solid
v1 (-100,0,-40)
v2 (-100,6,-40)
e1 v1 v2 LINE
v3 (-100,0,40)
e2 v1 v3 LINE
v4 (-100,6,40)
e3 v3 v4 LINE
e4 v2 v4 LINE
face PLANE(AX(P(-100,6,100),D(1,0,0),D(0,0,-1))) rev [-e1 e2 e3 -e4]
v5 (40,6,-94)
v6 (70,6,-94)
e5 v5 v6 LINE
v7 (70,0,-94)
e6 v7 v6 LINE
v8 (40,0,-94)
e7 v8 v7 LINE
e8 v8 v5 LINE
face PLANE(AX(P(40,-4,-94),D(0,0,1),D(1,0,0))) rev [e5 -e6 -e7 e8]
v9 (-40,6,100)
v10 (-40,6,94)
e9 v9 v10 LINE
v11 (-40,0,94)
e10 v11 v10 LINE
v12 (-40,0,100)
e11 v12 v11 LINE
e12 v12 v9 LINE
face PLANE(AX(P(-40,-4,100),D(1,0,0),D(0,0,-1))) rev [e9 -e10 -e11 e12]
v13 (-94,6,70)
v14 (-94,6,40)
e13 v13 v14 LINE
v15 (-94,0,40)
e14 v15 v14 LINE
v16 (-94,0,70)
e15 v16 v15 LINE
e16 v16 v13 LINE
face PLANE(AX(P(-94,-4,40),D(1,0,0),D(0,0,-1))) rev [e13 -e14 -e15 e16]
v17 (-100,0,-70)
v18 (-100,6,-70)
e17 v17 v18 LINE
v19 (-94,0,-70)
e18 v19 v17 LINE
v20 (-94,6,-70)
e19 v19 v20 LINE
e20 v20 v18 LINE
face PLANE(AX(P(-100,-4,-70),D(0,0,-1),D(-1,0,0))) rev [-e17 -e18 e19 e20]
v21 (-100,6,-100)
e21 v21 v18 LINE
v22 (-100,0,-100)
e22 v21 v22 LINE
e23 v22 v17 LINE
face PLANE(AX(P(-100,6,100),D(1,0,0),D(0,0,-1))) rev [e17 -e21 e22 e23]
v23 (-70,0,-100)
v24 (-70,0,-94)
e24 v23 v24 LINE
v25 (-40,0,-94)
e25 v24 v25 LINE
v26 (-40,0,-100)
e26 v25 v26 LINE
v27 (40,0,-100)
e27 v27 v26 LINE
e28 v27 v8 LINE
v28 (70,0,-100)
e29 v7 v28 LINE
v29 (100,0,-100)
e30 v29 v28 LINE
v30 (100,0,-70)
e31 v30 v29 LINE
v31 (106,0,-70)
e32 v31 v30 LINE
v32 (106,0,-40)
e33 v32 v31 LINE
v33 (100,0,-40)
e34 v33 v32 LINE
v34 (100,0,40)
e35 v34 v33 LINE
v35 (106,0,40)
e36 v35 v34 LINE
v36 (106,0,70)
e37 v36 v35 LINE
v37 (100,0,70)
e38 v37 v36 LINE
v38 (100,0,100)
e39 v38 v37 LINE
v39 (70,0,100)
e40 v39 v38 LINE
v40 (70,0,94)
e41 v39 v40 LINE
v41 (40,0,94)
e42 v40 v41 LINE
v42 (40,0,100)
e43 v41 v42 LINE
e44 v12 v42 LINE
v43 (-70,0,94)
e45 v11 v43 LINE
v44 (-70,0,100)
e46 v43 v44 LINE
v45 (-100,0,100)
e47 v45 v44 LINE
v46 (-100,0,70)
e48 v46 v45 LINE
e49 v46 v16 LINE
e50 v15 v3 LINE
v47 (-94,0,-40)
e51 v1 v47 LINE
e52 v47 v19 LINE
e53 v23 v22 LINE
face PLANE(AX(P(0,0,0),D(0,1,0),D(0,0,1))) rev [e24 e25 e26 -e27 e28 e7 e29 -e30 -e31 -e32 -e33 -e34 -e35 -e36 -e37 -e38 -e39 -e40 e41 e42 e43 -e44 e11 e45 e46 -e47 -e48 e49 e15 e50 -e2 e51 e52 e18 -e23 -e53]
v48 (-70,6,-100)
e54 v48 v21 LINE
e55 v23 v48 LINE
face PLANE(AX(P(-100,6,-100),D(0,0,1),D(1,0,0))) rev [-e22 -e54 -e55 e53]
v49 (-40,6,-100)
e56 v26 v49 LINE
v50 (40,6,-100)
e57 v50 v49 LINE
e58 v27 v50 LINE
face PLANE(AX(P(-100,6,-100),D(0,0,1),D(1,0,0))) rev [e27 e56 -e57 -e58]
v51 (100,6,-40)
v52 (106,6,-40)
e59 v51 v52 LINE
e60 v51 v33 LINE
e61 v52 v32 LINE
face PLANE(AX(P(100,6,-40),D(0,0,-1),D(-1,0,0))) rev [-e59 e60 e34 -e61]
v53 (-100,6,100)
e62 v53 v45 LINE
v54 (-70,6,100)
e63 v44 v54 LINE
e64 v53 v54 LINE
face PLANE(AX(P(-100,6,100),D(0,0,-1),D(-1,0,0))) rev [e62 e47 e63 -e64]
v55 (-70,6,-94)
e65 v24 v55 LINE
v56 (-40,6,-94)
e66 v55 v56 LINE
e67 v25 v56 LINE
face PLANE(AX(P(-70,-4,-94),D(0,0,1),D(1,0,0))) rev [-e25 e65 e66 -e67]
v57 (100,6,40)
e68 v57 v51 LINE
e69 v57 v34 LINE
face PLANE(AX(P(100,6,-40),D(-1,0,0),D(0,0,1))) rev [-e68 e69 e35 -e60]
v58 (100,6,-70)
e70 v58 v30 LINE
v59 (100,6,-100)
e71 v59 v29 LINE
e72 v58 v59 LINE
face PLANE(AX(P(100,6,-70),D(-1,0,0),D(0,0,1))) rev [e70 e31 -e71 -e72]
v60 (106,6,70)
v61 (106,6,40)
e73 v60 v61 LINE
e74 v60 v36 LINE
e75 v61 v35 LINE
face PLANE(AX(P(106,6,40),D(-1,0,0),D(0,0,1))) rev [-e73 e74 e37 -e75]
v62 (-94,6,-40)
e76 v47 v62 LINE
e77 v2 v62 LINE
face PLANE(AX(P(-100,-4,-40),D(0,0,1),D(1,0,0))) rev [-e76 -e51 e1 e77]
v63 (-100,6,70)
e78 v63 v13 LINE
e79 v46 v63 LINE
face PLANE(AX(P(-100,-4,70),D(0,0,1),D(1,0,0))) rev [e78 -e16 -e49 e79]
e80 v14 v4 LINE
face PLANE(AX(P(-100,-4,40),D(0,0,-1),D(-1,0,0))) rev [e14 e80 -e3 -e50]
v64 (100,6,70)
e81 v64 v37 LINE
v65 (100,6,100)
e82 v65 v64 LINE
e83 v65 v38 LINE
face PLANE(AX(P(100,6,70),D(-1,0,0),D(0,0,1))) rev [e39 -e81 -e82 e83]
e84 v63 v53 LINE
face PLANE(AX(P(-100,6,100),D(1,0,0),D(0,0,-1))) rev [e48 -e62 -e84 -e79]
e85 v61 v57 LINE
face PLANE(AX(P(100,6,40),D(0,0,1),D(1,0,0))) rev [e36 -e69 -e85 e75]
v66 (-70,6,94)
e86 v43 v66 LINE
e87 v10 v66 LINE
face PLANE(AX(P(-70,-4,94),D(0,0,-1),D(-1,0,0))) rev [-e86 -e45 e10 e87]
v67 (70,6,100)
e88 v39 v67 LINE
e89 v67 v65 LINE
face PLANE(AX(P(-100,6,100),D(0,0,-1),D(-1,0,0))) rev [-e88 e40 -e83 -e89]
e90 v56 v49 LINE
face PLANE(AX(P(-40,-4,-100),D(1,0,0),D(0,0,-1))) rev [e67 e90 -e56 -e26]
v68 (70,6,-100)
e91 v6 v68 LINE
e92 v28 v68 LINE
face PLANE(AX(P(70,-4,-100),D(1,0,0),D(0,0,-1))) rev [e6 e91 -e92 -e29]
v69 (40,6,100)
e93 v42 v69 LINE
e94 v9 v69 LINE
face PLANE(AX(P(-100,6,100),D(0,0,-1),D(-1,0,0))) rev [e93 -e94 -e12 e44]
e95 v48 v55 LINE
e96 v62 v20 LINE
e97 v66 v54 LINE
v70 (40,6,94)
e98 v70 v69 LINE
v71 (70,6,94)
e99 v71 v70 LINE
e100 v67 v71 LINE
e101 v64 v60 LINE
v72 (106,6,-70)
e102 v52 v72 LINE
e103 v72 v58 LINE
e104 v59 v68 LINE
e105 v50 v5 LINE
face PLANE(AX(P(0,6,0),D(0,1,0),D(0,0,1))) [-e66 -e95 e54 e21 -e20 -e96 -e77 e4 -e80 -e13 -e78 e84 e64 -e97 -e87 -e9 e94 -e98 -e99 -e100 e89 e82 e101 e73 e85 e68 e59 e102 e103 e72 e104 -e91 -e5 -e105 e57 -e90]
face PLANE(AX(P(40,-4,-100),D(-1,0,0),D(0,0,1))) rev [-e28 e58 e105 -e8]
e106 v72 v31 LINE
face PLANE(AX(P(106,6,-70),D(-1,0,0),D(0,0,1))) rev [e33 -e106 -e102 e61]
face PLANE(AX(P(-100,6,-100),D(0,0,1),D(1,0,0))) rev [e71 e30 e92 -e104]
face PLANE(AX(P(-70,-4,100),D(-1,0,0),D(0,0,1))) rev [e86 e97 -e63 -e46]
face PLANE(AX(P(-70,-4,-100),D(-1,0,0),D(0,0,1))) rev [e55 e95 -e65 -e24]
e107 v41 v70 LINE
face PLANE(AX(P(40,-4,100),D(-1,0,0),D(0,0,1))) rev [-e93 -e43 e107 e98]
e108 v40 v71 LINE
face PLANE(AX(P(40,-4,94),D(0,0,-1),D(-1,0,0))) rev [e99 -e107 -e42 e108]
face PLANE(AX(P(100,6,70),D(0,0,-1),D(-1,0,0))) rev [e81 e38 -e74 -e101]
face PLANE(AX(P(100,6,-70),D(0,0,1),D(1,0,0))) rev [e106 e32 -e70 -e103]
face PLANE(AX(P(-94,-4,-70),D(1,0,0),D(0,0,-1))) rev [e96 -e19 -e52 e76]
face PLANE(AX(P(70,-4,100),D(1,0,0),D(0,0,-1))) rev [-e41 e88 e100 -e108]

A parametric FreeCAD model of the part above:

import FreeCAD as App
import Part
import Sketcher

V = App.Vector

doc = App.newDocument("Part")
params = doc.addObject("Spreadsheet::Sheet", "Params")
for row, (alias, value) in enumerate([
    ("sketch1_width", "200 mm"),
    ("sketch1_width2", "6 mm"),
    ("sketch1_height", "30 mm"),
    ("pad1_length", "6 mm"),
    ("sketch2_width", "30 mm"),
    ("sketch2_width2", "6 mm"),
    ("pocket1_length", "10 mm"),
], start=1):
    params.set(f"A{row}", alias)
    params.set(f"B{row}", "=" + value)
    params.setAlias(f"B{row}", alias)

body = doc.addObject("PartDesign::Body", "Body")

sketch1 = body.newObject("Sketcher::SketchObject", "Sketch")
sketch1.AttachmentSupport = (doc.getObject("XZ_Plane"), [""])
sketch1.MapMode = "FlatFace"
sketch1.addGeometry(Part.LineSegment(V(100, -70, 0), V(100, -100, 0)), False)
sketch1.addGeometry(Part.LineSegment(V(100, -100, 0), V(-100, -100, 0)), False)
sketch1.addGeometry(Part.LineSegment(V(-100, -100, 0), V(-100, 100, 0)), False)
sketch1.addGeometry(Part.LineSegment(V(-100, 100, 0), V(100, 100, 0)), False)
sketch1.addGeometry(Part.LineSegment(V(100, 100, 0), V(100, 70, 0)), False)
sketch1.addGeometry(Part.LineSegment(V(100, 70, 0), V(106, 70, 0)), False)
sketch1.addGeometry(Part.LineSegment(V(106, 70, 0), V(106, 40, 0)), False)
sketch1.addGeometry(Part.LineSegment(V(106, 40, 0), V(100, 40, 0)), False)
sketch1.addGeometry(Part.LineSegment(V(100, 40, 0), V(100, -40, 0)), False)
sketch1.addGeometry(Part.LineSegment(V(100, -40, 0), V(106, -40, 0)), False)
sketch1.addGeometry(Part.LineSegment(V(106, -40, 0), V(106, -70, 0)), False)
sketch1.addGeometry(Part.LineSegment(V(106, -70, 0), V(100, -70, 0)), False)
sketch1.addConstraint(Sketcher.Constraint("Coincident", 0, 2, 1, 1))
sketch1.addConstraint(Sketcher.Constraint("Coincident", 1, 2, 2, 1))
sketch1.addConstraint(Sketcher.Constraint("Coincident", 2, 2, 3, 1))
sketch1.addConstraint(Sketcher.Constraint("Coincident", 3, 2, 4, 1))
sketch1.addConstraint(Sketcher.Constraint("Coincident", 4, 2, 5, 1))
sketch1.addConstraint(Sketcher.Constraint("Coincident", 5, 2, 6, 1))
sketch1.addConstraint(Sketcher.Constraint("Coincident", 6, 2, 7, 1))
sketch1.addConstraint(Sketcher.Constraint("Coincident", 7, 2, 8, 1))
sketch1.addConstraint(Sketcher.Constraint("Coincident", 8, 2, 9, 1))
sketch1.addConstraint(Sketcher.Constraint("Coincident", 9, 2, 10, 1))
sketch1.addConstraint(Sketcher.Constraint("Coincident", 10, 2, 11, 1))
sketch1.addConstraint(Sketcher.Constraint("Coincident", 11, 2, 0, 1))
sketch1.addConstraint(Sketcher.Constraint("Vertical", 0))
sketch1.addConstraint(Sketcher.Constraint("Horizontal", 1))
sketch1.addConstraint(Sketcher.Constraint("Vertical", 2))
sketch1.addConstraint(Sketcher.Constraint("Horizontal", 3))
sketch1.addConstraint(Sketcher.Constraint("Vertical", 4))
sketch1.addConstraint(Sketcher.Constraint("Horizontal", 5))
sketch1.addConstraint(Sketcher.Constraint("Vertical", 6))
sketch1.addConstraint(Sketcher.Constraint("Horizontal", 7))
sketch1.addConstraint(Sketcher.Constraint("Vertical", 8))
sketch1.addConstraint(Sketcher.Constraint("Horizontal", 9))
sketch1.addConstraint(Sketcher.Constraint("Vertical", 10))
sketch1.addConstraint(Sketcher.Constraint("Horizontal", 11))
sketch1.addConstraint(Sketcher.Constraint("Symmetric", 0, 2, 2, 2, -1, 1))
sketch1.addConstraint(Sketcher.Constraint("Symmetric", 6, 2, 9, 2, -1))
sketch1.addConstraint(Sketcher.Constraint("Symmetric", 4, 2, 11, 2, -1))
sketch1.addConstraint(Sketcher.Constraint("Vertical", 4, 2, 7, 2))
sketch1.addConstraint(Sketcher.Constraint("Equal", 3, 2))
sketch1.addConstraint(Sketcher.Constraint("Equal", 4, 6))
sketch1.addConstraint(Sketcher.Constraint("DistanceX", 1, 2, 1, 1, 200.0))
sketch1.addConstraint(Sketcher.Constraint("DistanceX", 5, 1, 5, 2, 6.0))
sketch1.addConstraint(Sketcher.Constraint("DistanceY", 0, 2, 0, 1, 30.0))
sketch1.setExpression("Constraints[30]", "Params.sketch1_width")
sketch1.setExpression("Constraints[31]", "Params.sketch1_width2")
sketch1.setExpression("Constraints[32]", "Params.sketch1_height")
pad1 = body.newObject("PartDesign::Pad", "Pad")
pad1.Profile = sketch1
pad1.setExpression("Length", "Params.pad1_length")
pad1.Reversed = True

sketch2 = body.newObject("Sketcher::SketchObject", "Sketch001")
sketch2.AttachmentSupport = (doc.getObject("XZ_Plane"), [""])
sketch2.MapMode = "FlatFace"
sketch2.AttachmentOffset = App.Placement(V(0, 0, -6), App.Rotation())
sketch2.addGeometry(Part.LineSegment(V(-70, 94, 0), V(-70, 100, 0)), False)
sketch2.addGeometry(Part.LineSegment(V(-70, 100, 0), V(-40, 100, 0)), False)
sketch2.addGeometry(Part.LineSegment(V(-40, 100, 0), V(-40, 94, 0)), False)
sketch2.addGeometry(Part.LineSegment(V(-40, 94, 0), V(-70, 94, 0)), False)
sketch2.addGeometry(Part.LineSegment(V(40, 94, 0), V(40, 100, 0)), False)
sketch2.addGeometry(Part.LineSegment(V(40, 100, 0), V(70, 100, 0)), False)
sketch2.addGeometry(Part.LineSegment(V(70, 100, 0), V(70, 94, 0)), False)
sketch2.addGeometry(Part.LineSegment(V(70, 94, 0), V(40, 94, 0)), False)
sketch2.addGeometry(Part.LineSegment(V(-70, -100, 0), V(-70, -94, 0)), False)
sketch2.addGeometry(Part.LineSegment(V(-70, -94, 0), V(-40, -94, 0)), False)
sketch2.addGeometry(Part.LineSegment(V(-40, -94, 0), V(-40, -100, 0)), False)
sketch2.addGeometry(Part.LineSegment(V(-40, -100, 0), V(-70, -100, 0)), False)
sketch2.addGeometry(Part.LineSegment(V(40, -100, 0), V(40, -94, 0)), False)
sketch2.addGeometry(Part.LineSegment(V(40, -94, 0), V(70, -94, 0)), False)
sketch2.addGeometry(Part.LineSegment(V(70, -94, 0), V(70, -100, 0)), False)
sketch2.addGeometry(Part.LineSegment(V(70, -100, 0), V(40, -100, 0)), False)
sketch2.addGeometry(Part.LineSegment(V(-100, -70, 0), V(-100, -40, 0)), False)
sketch2.addGeometry(Part.LineSegment(V(-100, -40, 0), V(-94, -40, 0)), False)
sketch2.addGeometry(Part.LineSegment(V(-94, -40, 0), V(-94, -70, 0)), False)
sketch2.addGeometry(Part.LineSegment(V(-94, -70, 0), V(-100, -70, 0)), False)
sketch2.addGeometry(Part.LineSegment(V(-100, 40, 0), V(-100, 70, 0)), False)
sketch2.addGeometry(Part.LineSegment(V(-100, 70, 0), V(-94, 70, 0)), False)
sketch2.addGeometry(Part.LineSegment(V(-94, 70, 0), V(-94, 40, 0)), False)
sketch2.addGeometry(Part.LineSegment(V(-94, 40, 0), V(-100, 40, 0)), False)
sketch2.addConstraint(Sketcher.Constraint("Coincident", 0, 2, 1, 1))
sketch2.addConstraint(Sketcher.Constraint("Coincident", 1, 2, 2, 1))
sketch2.addConstraint(Sketcher.Constraint("Coincident", 2, 2, 3, 1))
sketch2.addConstraint(Sketcher.Constraint("Coincident", 3, 2, 0, 1))
sketch2.addConstraint(Sketcher.Constraint("Coincident", 4, 2, 5, 1))
sketch2.addConstraint(Sketcher.Constraint("Coincident", 5, 2, 6, 1))
sketch2.addConstraint(Sketcher.Constraint("Coincident", 6, 2, 7, 1))
sketch2.addConstraint(Sketcher.Constraint("Coincident", 7, 2, 4, 1))
sketch2.addConstraint(Sketcher.Constraint("Coincident", 8, 2, 9, 1))
sketch2.addConstraint(Sketcher.Constraint("Coincident", 9, 2, 10, 1))
sketch2.addConstraint(Sketcher.Constraint("Coincident", 10, 2, 11, 1))
sketch2.addConstraint(Sketcher.Constraint("Coincident", 11, 2, 8, 1))
sketch2.addConstraint(Sketcher.Constraint("Coincident", 12, 2, 13, 1))
sketch2.addConstraint(Sketcher.Constraint("Coincident", 13, 2, 14, 1))
sketch2.addConstraint(Sketcher.Constraint("Coincident", 14, 2, 15, 1))
sketch2.addConstraint(Sketcher.Constraint("Coincident", 15, 2, 12, 1))
sketch2.addConstraint(Sketcher.Constraint("Coincident", 16, 2, 17, 1))
sketch2.addConstraint(Sketcher.Constraint("Coincident", 17, 2, 18, 1))
sketch2.addConstraint(Sketcher.Constraint("Coincident", 18, 2, 19, 1))
sketch2.addConstraint(Sketcher.Constraint("Coincident", 19, 2, 16, 1))
sketch2.addConstraint(Sketcher.Constraint("Coincident", 20, 2, 21, 1))
sketch2.addConstraint(Sketcher.Constraint("Coincident", 21, 2, 22, 1))
sketch2.addConstraint(Sketcher.Constraint("Coincident", 22, 2, 23, 1))
sketch2.addConstraint(Sketcher.Constraint("Coincident", 23, 2, 20, 1))
sketch2.addConstraint(Sketcher.Constraint("Vertical", 0))
sketch2.addConstraint(Sketcher.Constraint("Horizontal", 1))
sketch2.addConstraint(Sketcher.Constraint("Vertical", 2))
sketch2.addConstraint(Sketcher.Constraint("Horizontal", 3))
sketch2.addConstraint(Sketcher.Constraint("Vertical", 4))
sketch2.addConstraint(Sketcher.Constraint("Horizontal", 5))
sketch2.addConstraint(Sketcher.Constraint("Vertical", 6))
sketch2.addConstraint(Sketcher.Constraint("Horizontal", 7))
sketch2.addConstraint(Sketcher.Constraint("Vertical", 8))
sketch2.addConstraint(Sketcher.Constraint("Horizontal", 9))
sketch2.addConstraint(Sketcher.Constraint("Vertical", 10))
sketch2.addConstraint(Sketcher.Constraint("Horizontal", 11))
sketch2.addConstraint(Sketcher.Constraint("Vertical", 12))
sketch2.addConstraint(Sketcher.Constraint("Horizontal", 13))
sketch2.addConstraint(Sketcher.Constraint("Vertical", 14))
sketch2.addConstraint(Sketcher.Constraint("Horizontal", 15))
sketch2.addConstraint(Sketcher.Constraint("Vertical", 16))
sketch2.addConstraint(Sketcher.Constraint("Horizontal", 17))
sketch2.addConstraint(Sketcher.Constraint("Vertical", 18))
sketch2.addConstraint(Sketcher.Constraint("Horizontal", 19))
sketch2.addConstraint(Sketcher.Constraint("Vertical", 20))
sketch2.addConstraint(Sketcher.Constraint("Horizontal", 21))
sketch2.addConstraint(Sketcher.Constraint("Vertical", 22))
sketch2.addConstraint(Sketcher.Constraint("Horizontal", 23))
sketch2.addConstraint(Sketcher.Constraint("Symmetric", 6, 2, 8, 2, -1, 1))
sketch2.addConstraint(Sketcher.Constraint("Symmetric", 4, 2, 10, 2, -1, 1))
sketch2.addConstraint(Sketcher.Constraint("Symmetric", 2, 2, 12, 2, -1, 1))
sketch2.addConstraint(Sketcher.Constraint("Symmetric", 0, 2, 14, 2, -1, 1))
sketch2.addConstraint(Sketcher.Constraint("Symmetric", 1, 2, 4, 2, -2))
sketch2.addConstraint(Sketcher.Constraint("Symmetric", 3, 2, 6, 2, -2))
sketch2.addConstraint(Sketcher.Constraint("Symmetric", 19, 2, 20, 2, -1))
sketch2.addConstraint(Sketcher.Constraint("Symmetric", 17, 2, 22, 2, -1))
sketch2.addConstraint(Sketcher.Constraint("Equal", 23, 0))
sketch2.addConstraint(Sketcher.Constraint("Equal", 15, 16))
sketch2.addConstraint(Sketcher.Constraint("DistanceX", 1, 1, 1, 2, 30.0))
sketch2.addConstraint(Sketcher.Constraint("DistanceX", 17, 1, 17, 2, 6.0))
sketch2.addConstraint(Sketcher.Constraint("DistanceX", 0, 2, -1, 1, 70.0))
sketch2.addConstraint(Sketcher.Constraint("DistanceY", -1, 1, 0, 2, 100.0))
sketch2.addConstraint(Sketcher.Constraint("DistanceX", 16, 2, -1, 1, 100.0))
sketch2.addConstraint(Sketcher.Constraint("DistanceY", 16, 2, -1, 1, 40.0))
sketch2.setExpression("Constraints[58]", "Params.sketch2_width")
sketch2.setExpression("Constraints[59]", "Params.sketch2_width2")
pocket1 = body.newObject("PartDesign::Pocket", "Pocket")
pocket1.Profile = sketch2
pocket1.setExpression("Length", "Params.pocket1_length")
pocket1.Reversed = True

doc.recompute()
